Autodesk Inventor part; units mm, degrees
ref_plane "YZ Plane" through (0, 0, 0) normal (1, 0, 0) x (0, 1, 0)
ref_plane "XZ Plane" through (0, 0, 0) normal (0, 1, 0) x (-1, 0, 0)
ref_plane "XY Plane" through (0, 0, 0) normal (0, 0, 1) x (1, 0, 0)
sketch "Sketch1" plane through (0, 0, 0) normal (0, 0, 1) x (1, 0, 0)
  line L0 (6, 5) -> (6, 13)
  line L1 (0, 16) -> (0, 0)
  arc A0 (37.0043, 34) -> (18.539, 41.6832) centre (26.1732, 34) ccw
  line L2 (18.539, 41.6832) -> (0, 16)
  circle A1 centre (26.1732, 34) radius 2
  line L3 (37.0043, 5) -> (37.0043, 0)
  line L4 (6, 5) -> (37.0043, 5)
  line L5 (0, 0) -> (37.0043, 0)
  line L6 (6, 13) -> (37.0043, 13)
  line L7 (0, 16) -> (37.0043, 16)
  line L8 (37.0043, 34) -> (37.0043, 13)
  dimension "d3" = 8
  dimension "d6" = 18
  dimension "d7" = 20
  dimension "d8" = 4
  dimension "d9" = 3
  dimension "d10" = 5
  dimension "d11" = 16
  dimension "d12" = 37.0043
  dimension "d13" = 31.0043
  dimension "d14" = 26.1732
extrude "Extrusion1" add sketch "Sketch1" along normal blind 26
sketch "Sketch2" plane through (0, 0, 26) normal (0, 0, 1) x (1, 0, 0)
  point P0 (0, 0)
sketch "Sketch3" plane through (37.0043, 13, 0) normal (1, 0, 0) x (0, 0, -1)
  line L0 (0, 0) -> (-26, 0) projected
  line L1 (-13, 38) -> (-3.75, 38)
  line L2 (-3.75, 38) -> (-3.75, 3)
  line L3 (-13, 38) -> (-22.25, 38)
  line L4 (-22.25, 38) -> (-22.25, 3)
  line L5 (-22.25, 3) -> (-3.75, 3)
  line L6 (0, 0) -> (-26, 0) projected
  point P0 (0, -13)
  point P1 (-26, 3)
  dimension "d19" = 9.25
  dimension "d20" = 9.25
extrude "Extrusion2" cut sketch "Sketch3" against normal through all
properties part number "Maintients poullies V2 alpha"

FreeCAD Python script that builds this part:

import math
import FreeCAD as App
import Part
import Sketcher
Q = App.Units.Quantity


def add_polygon(sketch, points):
    """Adds a closed chain of lines whose ends are joined by coincident constraints."""
    first, n = sketch.GeometryCount, len(points)
    for a, b in zip(points, points[1:] + points[:1]):
        sketch.addGeometry(Part.LineSegment(App.Vector(*a, 0), App.Vector(*b, 0)), False)
    for i in range(n):
        sketch.addConstraint(Sketcher.Constraint("Coincident", first + i, 2, first + (i + 1) % n, 1))

doc = App.newDocument("Part")
params = doc.addObject("Spreadsheet::Sheet", "Params")
for row, (alias, value) in enumerate([
    ("sketch1_diameter", "4 mm"),
    ("sketch1_height", "8 mm"),
    ("sketch1_height2", "16 mm"),
    ("sketch1_height3", "5 mm"),
    ("pad1_length", "26 mm"),
    ("sketch2_width", "35 mm"),
    ("sketch2_height", "18.5 mm"),
], start=1):
    params.set(f"A{row}", alias)
    params.set(f"B{row}", "=" + value)
    params.setAlias(f"B{row}", alias)

body = doc.addObject("PartDesign::Body", "Body")

# Sketch on XY plane
sketch1 = doc.addObject("Sketcher::SketchObject", "Sketch")
body.addObject(sketch1)
sketch1.AttachmentSupport = (doc.XY_Plane, [""])
sketch1.MapMode = "FlatFace"
sketch1.addGeometry(Part.LineSegment(App.Vector(37.0043, 5, 0), App.Vector(6, 5, 0)), False)
sketch1.addGeometry(Part.LineSegment(App.Vector(6, 5, 0), App.Vector(6, 13, 0)), False)
sketch1.addGeometry(Part.LineSegment(App.Vector(6, 13, 0), App.Vector(37.0043, 13, 0)), False)
sketch1.addGeometry(Part.LineSegment(App.Vector(37.0043, 13, 0), App.Vector(37.0043, 34, 0)), False)
sketch1.addGeometry(Part.ArcOfCircle(Part.Circle(App.Vector(26.1732, 34, 0), App.Vector(0, 0, 1), 10.8311), math.radians(0), math.radians(134.816713)), False)
sketch1.addGeometry(Part.LineSegment(App.Vector(18.539, 41.6832, 0), App.Vector(0, 16, 0)), False)
sketch1.addGeometry(Part.LineSegment(App.Vector(0, 16, 0), App.Vector(0, 0, 0)), False)
sketch1.addGeometry(Part.LineSegment(App.Vector(0, 0, 0), App.Vector(37.0043, 0, 0)), False)
sketch1.addGeometry(Part.LineSegment(App.Vector(37.0043, 0, 0), App.Vector(37.0043, 5, 0)), False)
sketch1.addGeometry(Part.Circle(App.Vector(26.1732, 34, 0), App.Vector(0, 0, 1), 2), False)
sketch1.addConstraint(Sketcher.Constraint("Coincident", 0, 2, 1, 1))
sketch1.addConstraint(Sketcher.Constraint("Coincident", 1, 2, 2, 1))
sketch1.addConstraint(Sketcher.Constraint("Coincident", 2, 2, 3, 1))
sketch1.addConstraint(Sketcher.Constraint("Tangent", 3, 2, 4, 1))
sketch1.addConstraint(Sketcher.Constraint("Coincident", 4, 2, 5, 1))
sketch1.addConstraint(Sketcher.Constraint("Coincident", 5, 2, 6, 1))
sketch1.addConstraint(Sketcher.Constraint("Coincident", 6, 2, 7, 1))
sketch1.addConstraint(Sketcher.Constraint("Coincident", 7, 2, 8, 1))
sketch1.addConstraint(Sketcher.Constraint("Coincident", 8, 2, 0, 1))
sketch1.addConstraint(Sketcher.Constraint("Horizontal", 0))
sketch1.addConstraint(Sketcher.Constraint("Vertical", 1))
sketch1.addConstraint(Sketcher.Constraint("Horizontal", 2))
sketch1.addConstraint(Sketcher.Constraint("Vertical", 3))
sketch1.addConstraint(Sketcher.Constraint("Vertical", 6))
sketch1.addConstraint(Sketcher.Constraint("Horizontal", 7))
sketch1.addConstraint(Sketcher.Constraint("Vertical", 8))
sketch1.addConstraint(Sketcher.Constraint("Coincident", 6, 2, -1, 1))
sketch1.addConstraint(Sketcher.Constraint("Coincident", 9, 3, 4, 3))
sketch1.addConstraint(Sketcher.Constraint("Vertical", 3, 2, 7, 2))
sketch1.addConstraint(Sketcher.Constraint("Diameter", 9, Q("4 mm")))
sketch1.addConstraint(Sketcher.Constraint("DistanceY", 1, 1, 1, 2, Q("8 mm")))
sketch1.addConstraint(Sketcher.Constraint("DistanceY", 6, 2, 6, 1, Q("16 mm")))
sketch1.addConstraint(Sketcher.Constraint("DistanceY", 8, 1, 8, 2, Q("5 mm")))
sketch1.addConstraint(Sketcher.Constraint("DistanceY", 5, 2, 4, 3, Q("18 mm")))
sketch1.addConstraint(Sketcher.Constraint("DistanceX", 0, 2, 0, 1, Q("31.0043 mm")))
sketch1.addConstraint(Sketcher.Constraint("DistanceX", 7, 1, 7, 2, Q("37.0043 mm")))
sketch1.addConstraint(Sketcher.Constraint("Radius", 4, Q("10.831 mm")))
sketch1.addConstraint(Sketcher.Constraint("DistanceX", -1, 1, 4, 2, Q("18.539 mm")))
sketch1.setExpression("Constraints[19]", "Params.sketch1_diameter")
sketch1.setExpression("Constraints[20]", "Params.sketch1_height")
sketch1.setExpression("Constraints[21]", "Params.sketch1_height2")
sketch1.setExpression("Constraints[22]", "Params.sketch1_height3")
pad1 = doc.addObject("PartDesign::Pad", "Pad")
body.addObject(pad1)
pad1.Profile = sketch1
pad1.setExpression("Length", "Params.pad1_length")

# Sketch on YZ plane
sketch2 = doc.addObject("Sketcher::SketchObject", "Sketch001")
body.addObject(sketch2)
sketch2.AttachmentSupport = (doc.YZ_Plane, [""])
sketch2.MapMode = "FlatFace"
sketch2.AttachmentOffset = App.Placement(App.Vector(0, 0, 37.0043), App.Rotation())
add_polygon(sketch2, [(51, 3.75), (51, 22.25), (16, 22.25), (16, 3.75)])  # lines 0-3
sketch2.addConstraint(Sketcher.Constraint("Vertical", 0))
sketch2.addConstraint(Sketcher.Constraint("Horizontal", 1))
sketch2.addConstraint(Sketcher.Constraint("Vertical", 2))
sketch2.addConstraint(Sketcher.Constraint("Horizontal", 3))
sketch2.addConstraint(Sketcher.Constraint("DistanceX", 1, 2, 1, 1, Q("35 mm")))
sketch2.addConstraint(Sketcher.Constraint("DistanceY", 0, 1, 0, 2, Q("18.5 mm")))
sketch2.addConstraint(Sketcher.Constraint("DistanceX", -1, 1, 0, 2, Q("51 mm")))
sketch2.addConstraint(Sketcher.Constraint("DistanceY", -1, 1, 0, 2, Q("22.25 mm")))
sketch2.setExpression("Constraints[8]", "Params.sketch2_width")
sketch2.setExpression("Constraints[9]", "Params.sketch2_height")
pocket1 = doc.addObject("PartDesign::Pocket", "Pocket")
body.addObject(pocket1)
pocket1.Profile = sketch2
pocket1.Type = "ThroughAll"

doc.recompute()
